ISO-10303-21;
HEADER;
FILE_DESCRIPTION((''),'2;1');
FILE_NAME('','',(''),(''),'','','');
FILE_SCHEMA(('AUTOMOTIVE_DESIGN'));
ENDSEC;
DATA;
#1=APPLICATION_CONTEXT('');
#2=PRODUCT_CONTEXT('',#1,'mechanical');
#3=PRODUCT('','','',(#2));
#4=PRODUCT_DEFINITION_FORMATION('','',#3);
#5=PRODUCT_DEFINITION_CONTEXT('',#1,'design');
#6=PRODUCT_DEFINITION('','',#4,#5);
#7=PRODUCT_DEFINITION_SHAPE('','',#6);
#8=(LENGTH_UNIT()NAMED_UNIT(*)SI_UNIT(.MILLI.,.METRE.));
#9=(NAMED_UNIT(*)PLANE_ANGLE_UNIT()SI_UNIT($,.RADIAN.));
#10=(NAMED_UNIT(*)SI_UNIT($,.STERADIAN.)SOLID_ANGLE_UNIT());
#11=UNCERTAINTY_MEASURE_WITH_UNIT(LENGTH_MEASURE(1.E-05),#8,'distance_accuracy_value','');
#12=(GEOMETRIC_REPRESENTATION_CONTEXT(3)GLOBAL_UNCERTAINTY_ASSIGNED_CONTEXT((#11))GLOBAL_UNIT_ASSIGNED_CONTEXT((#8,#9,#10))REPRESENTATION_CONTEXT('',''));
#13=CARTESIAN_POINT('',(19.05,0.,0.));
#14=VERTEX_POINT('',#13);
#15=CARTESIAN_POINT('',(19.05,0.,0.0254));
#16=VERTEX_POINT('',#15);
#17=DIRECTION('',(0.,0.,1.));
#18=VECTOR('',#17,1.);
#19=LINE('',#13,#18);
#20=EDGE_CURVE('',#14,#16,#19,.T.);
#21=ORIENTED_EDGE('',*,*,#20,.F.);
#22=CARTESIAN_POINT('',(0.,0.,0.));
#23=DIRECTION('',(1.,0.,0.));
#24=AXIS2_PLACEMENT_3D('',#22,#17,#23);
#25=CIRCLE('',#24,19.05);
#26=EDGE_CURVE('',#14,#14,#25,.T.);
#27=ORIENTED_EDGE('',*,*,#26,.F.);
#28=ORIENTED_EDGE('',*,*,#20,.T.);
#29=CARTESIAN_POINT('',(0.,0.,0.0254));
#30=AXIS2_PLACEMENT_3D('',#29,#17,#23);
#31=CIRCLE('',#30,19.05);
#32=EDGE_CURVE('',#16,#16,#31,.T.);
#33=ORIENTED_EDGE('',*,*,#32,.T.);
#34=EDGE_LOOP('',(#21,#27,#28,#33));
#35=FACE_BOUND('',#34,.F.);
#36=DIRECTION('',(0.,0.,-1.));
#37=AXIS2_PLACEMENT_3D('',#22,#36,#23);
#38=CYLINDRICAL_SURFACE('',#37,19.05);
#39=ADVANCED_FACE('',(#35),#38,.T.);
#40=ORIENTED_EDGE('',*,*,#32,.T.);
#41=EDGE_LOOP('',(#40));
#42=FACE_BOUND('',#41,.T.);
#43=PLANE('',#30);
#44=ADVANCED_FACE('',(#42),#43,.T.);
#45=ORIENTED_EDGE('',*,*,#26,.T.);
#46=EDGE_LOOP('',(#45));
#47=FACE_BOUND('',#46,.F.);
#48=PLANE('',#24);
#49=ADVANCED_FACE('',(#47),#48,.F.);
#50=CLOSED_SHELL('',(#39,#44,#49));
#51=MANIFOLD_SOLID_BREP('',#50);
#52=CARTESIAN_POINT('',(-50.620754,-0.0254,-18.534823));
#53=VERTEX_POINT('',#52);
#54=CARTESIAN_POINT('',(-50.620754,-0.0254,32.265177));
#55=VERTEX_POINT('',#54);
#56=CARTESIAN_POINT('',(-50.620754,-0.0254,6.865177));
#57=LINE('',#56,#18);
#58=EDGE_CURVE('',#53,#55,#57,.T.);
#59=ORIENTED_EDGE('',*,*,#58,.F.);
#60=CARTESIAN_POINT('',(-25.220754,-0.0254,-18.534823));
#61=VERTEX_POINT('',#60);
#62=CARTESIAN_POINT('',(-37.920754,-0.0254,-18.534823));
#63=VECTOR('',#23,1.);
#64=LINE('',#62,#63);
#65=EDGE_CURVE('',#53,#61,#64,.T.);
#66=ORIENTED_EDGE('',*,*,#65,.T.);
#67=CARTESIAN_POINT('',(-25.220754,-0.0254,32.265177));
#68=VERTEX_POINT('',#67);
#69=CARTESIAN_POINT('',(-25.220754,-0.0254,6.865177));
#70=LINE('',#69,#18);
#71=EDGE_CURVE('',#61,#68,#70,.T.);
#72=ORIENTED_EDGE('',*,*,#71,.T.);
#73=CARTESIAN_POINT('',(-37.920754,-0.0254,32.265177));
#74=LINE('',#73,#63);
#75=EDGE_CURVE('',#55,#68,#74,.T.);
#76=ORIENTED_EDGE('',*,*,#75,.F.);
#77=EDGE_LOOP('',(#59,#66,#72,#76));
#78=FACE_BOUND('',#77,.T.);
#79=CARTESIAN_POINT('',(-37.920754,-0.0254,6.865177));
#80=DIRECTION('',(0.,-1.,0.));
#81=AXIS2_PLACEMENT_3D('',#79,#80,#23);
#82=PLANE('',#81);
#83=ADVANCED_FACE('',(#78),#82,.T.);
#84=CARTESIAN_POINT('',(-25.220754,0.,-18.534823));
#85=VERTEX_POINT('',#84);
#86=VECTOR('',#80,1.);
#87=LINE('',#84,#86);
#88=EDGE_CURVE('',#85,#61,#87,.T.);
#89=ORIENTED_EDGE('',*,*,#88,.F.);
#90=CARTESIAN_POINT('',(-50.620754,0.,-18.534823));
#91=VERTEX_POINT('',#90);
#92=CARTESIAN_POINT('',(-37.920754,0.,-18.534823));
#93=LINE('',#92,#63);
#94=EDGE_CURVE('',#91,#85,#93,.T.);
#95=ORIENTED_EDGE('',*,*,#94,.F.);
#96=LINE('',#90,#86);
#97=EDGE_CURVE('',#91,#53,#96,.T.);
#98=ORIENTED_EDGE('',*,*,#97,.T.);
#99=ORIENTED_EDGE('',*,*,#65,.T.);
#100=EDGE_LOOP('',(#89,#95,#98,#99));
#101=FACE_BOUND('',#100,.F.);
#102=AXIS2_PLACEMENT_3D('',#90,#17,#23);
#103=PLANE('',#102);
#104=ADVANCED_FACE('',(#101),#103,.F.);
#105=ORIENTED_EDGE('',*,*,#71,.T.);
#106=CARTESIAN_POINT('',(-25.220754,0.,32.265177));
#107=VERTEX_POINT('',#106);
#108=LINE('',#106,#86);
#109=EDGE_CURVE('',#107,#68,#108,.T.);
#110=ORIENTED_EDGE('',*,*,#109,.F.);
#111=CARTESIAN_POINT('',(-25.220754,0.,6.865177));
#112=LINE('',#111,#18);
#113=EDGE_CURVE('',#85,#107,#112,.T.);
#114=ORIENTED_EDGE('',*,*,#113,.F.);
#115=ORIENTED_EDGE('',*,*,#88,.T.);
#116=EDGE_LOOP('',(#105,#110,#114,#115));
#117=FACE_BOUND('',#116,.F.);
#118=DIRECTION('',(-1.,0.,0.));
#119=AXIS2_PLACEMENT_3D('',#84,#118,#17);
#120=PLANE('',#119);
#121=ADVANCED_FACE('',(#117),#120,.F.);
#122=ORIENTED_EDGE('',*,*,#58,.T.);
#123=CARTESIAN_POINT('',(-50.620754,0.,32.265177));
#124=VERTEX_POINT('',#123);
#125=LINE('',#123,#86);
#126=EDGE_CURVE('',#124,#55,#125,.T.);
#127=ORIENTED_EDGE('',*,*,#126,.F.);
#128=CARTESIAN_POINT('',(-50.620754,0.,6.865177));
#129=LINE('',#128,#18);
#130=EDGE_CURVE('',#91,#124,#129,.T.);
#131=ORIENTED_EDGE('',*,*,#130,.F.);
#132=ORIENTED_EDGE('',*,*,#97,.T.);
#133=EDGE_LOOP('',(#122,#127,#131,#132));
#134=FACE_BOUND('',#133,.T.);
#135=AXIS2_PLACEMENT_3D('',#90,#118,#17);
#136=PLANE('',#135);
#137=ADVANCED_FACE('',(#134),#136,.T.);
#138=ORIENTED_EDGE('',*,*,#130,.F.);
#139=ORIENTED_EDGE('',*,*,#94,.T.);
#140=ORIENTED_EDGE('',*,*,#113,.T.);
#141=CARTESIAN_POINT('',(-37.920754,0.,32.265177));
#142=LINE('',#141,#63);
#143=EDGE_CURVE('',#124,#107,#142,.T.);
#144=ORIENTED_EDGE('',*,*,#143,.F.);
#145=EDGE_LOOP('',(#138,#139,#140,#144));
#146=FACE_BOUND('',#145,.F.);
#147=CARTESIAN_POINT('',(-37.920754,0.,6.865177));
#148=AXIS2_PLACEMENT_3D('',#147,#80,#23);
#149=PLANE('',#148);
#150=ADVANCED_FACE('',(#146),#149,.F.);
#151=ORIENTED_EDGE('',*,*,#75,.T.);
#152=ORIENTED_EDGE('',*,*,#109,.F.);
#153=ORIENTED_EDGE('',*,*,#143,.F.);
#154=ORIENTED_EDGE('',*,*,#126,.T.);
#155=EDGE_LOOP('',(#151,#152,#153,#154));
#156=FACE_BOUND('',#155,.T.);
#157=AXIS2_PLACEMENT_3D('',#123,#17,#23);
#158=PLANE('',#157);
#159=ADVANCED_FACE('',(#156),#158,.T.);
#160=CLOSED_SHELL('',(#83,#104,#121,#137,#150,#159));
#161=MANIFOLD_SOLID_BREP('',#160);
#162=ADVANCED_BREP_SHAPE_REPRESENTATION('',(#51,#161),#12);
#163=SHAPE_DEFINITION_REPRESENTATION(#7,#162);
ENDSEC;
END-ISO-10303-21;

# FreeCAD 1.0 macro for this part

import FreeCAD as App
import Part
import Sketcher

V = App.Vector
Q = App.Units.Quantity

doc = App.newDocument("Part")
body = doc.addObject("PartDesign::Body", "Body")

# Sketch on XZ plane
sketch1 = body.newObject("Sketcher::SketchObject", "Sketch")
sketch1.AttachmentSupport = (doc.getObject("XZ_Plane"), [""])
sketch1.MapMode = "FlatFace"
sketch1.addGeometry(Part.LineSegment(V(-51, 32, 0), V(-51, -19, 0)), False)
sketch1.addGeometry(Part.LineSegment(V(-51, -19, 0), V(-25, -19, 0)), False)
sketch1.addGeometry(Part.LineSegment(V(-25, -19, 0), V(-25, 32, 0)), False)
sketch1.addGeometry(Part.LineSegment(V(-25, 32, 0), V(-51, 32, 0)), False)
sketch1.addConstraint(Sketcher.Constraint("Coincident", 0, 2, 1, 1))
sketch1.addConstraint(Sketcher.Constraint("Coincident", 1, 2, 2, 1))
sketch1.addConstraint(Sketcher.Constraint("Coincident", 2, 2, 3, 1))
sketch1.addConstraint(Sketcher.Constraint("Coincident", 3, 2, 0, 1))
sketch1.addConstraint(Sketcher.Constraint("Vertical", 0))
sketch1.addConstraint(Sketcher.Constraint("Horizontal", 1))
sketch1.addConstraint(Sketcher.Constraint("Vertical", 2))
sketch1.addConstraint(Sketcher.Constraint("Horizontal", 3))
sketch1.addConstraint(Sketcher.Constraint("DistanceX", 1, 1, 1, 2, Q("1 in")))
sketch1.addConstraint(Sketcher.Constraint("DistanceY", 0, 2, 0, 1, Q("2 in")))
sketch1.addConstraint(Sketcher.Constraint("DistanceX", 0, 2, -1, 1, Q("50.620754 mm")))
sketch1.addConstraint(Sketcher.Constraint("DistanceY", 0, 2, -1, 1, Q("18.534823 mm")))
pad1 = body.newObject("PartDesign::Pad", "Pad")
pad1.Profile = sketch1
pad1.Length = Q("0.001 in")
body2 = doc.addObject("PartDesign::Body", "Body001")

# Sketch on XY plane
sketch2 = body2.newObject("Sketcher::SketchObject", "Sketch001")
sketch2.AttachmentSupport = (doc.getObject("XY_Plane001"), [""])
sketch2.MapMode = "FlatFace"
sketch2.addGeometry(Part.Circle(V(0, 0, 0), V(0, 0, 1), 19), False)
sketch2.addConstraint(Sketcher.Constraint("Coincident", 0, 3, -1, 1))
sketch2.addConstraint(Sketcher.Constraint("Diameter", 0, Q("1.5 in")))
pad2 = body2.newObject("PartDesign::Pad", "Pad001")
pad2.Profile = sketch2
pad2.Length = Q("0.001 in")

doc.recompute()
